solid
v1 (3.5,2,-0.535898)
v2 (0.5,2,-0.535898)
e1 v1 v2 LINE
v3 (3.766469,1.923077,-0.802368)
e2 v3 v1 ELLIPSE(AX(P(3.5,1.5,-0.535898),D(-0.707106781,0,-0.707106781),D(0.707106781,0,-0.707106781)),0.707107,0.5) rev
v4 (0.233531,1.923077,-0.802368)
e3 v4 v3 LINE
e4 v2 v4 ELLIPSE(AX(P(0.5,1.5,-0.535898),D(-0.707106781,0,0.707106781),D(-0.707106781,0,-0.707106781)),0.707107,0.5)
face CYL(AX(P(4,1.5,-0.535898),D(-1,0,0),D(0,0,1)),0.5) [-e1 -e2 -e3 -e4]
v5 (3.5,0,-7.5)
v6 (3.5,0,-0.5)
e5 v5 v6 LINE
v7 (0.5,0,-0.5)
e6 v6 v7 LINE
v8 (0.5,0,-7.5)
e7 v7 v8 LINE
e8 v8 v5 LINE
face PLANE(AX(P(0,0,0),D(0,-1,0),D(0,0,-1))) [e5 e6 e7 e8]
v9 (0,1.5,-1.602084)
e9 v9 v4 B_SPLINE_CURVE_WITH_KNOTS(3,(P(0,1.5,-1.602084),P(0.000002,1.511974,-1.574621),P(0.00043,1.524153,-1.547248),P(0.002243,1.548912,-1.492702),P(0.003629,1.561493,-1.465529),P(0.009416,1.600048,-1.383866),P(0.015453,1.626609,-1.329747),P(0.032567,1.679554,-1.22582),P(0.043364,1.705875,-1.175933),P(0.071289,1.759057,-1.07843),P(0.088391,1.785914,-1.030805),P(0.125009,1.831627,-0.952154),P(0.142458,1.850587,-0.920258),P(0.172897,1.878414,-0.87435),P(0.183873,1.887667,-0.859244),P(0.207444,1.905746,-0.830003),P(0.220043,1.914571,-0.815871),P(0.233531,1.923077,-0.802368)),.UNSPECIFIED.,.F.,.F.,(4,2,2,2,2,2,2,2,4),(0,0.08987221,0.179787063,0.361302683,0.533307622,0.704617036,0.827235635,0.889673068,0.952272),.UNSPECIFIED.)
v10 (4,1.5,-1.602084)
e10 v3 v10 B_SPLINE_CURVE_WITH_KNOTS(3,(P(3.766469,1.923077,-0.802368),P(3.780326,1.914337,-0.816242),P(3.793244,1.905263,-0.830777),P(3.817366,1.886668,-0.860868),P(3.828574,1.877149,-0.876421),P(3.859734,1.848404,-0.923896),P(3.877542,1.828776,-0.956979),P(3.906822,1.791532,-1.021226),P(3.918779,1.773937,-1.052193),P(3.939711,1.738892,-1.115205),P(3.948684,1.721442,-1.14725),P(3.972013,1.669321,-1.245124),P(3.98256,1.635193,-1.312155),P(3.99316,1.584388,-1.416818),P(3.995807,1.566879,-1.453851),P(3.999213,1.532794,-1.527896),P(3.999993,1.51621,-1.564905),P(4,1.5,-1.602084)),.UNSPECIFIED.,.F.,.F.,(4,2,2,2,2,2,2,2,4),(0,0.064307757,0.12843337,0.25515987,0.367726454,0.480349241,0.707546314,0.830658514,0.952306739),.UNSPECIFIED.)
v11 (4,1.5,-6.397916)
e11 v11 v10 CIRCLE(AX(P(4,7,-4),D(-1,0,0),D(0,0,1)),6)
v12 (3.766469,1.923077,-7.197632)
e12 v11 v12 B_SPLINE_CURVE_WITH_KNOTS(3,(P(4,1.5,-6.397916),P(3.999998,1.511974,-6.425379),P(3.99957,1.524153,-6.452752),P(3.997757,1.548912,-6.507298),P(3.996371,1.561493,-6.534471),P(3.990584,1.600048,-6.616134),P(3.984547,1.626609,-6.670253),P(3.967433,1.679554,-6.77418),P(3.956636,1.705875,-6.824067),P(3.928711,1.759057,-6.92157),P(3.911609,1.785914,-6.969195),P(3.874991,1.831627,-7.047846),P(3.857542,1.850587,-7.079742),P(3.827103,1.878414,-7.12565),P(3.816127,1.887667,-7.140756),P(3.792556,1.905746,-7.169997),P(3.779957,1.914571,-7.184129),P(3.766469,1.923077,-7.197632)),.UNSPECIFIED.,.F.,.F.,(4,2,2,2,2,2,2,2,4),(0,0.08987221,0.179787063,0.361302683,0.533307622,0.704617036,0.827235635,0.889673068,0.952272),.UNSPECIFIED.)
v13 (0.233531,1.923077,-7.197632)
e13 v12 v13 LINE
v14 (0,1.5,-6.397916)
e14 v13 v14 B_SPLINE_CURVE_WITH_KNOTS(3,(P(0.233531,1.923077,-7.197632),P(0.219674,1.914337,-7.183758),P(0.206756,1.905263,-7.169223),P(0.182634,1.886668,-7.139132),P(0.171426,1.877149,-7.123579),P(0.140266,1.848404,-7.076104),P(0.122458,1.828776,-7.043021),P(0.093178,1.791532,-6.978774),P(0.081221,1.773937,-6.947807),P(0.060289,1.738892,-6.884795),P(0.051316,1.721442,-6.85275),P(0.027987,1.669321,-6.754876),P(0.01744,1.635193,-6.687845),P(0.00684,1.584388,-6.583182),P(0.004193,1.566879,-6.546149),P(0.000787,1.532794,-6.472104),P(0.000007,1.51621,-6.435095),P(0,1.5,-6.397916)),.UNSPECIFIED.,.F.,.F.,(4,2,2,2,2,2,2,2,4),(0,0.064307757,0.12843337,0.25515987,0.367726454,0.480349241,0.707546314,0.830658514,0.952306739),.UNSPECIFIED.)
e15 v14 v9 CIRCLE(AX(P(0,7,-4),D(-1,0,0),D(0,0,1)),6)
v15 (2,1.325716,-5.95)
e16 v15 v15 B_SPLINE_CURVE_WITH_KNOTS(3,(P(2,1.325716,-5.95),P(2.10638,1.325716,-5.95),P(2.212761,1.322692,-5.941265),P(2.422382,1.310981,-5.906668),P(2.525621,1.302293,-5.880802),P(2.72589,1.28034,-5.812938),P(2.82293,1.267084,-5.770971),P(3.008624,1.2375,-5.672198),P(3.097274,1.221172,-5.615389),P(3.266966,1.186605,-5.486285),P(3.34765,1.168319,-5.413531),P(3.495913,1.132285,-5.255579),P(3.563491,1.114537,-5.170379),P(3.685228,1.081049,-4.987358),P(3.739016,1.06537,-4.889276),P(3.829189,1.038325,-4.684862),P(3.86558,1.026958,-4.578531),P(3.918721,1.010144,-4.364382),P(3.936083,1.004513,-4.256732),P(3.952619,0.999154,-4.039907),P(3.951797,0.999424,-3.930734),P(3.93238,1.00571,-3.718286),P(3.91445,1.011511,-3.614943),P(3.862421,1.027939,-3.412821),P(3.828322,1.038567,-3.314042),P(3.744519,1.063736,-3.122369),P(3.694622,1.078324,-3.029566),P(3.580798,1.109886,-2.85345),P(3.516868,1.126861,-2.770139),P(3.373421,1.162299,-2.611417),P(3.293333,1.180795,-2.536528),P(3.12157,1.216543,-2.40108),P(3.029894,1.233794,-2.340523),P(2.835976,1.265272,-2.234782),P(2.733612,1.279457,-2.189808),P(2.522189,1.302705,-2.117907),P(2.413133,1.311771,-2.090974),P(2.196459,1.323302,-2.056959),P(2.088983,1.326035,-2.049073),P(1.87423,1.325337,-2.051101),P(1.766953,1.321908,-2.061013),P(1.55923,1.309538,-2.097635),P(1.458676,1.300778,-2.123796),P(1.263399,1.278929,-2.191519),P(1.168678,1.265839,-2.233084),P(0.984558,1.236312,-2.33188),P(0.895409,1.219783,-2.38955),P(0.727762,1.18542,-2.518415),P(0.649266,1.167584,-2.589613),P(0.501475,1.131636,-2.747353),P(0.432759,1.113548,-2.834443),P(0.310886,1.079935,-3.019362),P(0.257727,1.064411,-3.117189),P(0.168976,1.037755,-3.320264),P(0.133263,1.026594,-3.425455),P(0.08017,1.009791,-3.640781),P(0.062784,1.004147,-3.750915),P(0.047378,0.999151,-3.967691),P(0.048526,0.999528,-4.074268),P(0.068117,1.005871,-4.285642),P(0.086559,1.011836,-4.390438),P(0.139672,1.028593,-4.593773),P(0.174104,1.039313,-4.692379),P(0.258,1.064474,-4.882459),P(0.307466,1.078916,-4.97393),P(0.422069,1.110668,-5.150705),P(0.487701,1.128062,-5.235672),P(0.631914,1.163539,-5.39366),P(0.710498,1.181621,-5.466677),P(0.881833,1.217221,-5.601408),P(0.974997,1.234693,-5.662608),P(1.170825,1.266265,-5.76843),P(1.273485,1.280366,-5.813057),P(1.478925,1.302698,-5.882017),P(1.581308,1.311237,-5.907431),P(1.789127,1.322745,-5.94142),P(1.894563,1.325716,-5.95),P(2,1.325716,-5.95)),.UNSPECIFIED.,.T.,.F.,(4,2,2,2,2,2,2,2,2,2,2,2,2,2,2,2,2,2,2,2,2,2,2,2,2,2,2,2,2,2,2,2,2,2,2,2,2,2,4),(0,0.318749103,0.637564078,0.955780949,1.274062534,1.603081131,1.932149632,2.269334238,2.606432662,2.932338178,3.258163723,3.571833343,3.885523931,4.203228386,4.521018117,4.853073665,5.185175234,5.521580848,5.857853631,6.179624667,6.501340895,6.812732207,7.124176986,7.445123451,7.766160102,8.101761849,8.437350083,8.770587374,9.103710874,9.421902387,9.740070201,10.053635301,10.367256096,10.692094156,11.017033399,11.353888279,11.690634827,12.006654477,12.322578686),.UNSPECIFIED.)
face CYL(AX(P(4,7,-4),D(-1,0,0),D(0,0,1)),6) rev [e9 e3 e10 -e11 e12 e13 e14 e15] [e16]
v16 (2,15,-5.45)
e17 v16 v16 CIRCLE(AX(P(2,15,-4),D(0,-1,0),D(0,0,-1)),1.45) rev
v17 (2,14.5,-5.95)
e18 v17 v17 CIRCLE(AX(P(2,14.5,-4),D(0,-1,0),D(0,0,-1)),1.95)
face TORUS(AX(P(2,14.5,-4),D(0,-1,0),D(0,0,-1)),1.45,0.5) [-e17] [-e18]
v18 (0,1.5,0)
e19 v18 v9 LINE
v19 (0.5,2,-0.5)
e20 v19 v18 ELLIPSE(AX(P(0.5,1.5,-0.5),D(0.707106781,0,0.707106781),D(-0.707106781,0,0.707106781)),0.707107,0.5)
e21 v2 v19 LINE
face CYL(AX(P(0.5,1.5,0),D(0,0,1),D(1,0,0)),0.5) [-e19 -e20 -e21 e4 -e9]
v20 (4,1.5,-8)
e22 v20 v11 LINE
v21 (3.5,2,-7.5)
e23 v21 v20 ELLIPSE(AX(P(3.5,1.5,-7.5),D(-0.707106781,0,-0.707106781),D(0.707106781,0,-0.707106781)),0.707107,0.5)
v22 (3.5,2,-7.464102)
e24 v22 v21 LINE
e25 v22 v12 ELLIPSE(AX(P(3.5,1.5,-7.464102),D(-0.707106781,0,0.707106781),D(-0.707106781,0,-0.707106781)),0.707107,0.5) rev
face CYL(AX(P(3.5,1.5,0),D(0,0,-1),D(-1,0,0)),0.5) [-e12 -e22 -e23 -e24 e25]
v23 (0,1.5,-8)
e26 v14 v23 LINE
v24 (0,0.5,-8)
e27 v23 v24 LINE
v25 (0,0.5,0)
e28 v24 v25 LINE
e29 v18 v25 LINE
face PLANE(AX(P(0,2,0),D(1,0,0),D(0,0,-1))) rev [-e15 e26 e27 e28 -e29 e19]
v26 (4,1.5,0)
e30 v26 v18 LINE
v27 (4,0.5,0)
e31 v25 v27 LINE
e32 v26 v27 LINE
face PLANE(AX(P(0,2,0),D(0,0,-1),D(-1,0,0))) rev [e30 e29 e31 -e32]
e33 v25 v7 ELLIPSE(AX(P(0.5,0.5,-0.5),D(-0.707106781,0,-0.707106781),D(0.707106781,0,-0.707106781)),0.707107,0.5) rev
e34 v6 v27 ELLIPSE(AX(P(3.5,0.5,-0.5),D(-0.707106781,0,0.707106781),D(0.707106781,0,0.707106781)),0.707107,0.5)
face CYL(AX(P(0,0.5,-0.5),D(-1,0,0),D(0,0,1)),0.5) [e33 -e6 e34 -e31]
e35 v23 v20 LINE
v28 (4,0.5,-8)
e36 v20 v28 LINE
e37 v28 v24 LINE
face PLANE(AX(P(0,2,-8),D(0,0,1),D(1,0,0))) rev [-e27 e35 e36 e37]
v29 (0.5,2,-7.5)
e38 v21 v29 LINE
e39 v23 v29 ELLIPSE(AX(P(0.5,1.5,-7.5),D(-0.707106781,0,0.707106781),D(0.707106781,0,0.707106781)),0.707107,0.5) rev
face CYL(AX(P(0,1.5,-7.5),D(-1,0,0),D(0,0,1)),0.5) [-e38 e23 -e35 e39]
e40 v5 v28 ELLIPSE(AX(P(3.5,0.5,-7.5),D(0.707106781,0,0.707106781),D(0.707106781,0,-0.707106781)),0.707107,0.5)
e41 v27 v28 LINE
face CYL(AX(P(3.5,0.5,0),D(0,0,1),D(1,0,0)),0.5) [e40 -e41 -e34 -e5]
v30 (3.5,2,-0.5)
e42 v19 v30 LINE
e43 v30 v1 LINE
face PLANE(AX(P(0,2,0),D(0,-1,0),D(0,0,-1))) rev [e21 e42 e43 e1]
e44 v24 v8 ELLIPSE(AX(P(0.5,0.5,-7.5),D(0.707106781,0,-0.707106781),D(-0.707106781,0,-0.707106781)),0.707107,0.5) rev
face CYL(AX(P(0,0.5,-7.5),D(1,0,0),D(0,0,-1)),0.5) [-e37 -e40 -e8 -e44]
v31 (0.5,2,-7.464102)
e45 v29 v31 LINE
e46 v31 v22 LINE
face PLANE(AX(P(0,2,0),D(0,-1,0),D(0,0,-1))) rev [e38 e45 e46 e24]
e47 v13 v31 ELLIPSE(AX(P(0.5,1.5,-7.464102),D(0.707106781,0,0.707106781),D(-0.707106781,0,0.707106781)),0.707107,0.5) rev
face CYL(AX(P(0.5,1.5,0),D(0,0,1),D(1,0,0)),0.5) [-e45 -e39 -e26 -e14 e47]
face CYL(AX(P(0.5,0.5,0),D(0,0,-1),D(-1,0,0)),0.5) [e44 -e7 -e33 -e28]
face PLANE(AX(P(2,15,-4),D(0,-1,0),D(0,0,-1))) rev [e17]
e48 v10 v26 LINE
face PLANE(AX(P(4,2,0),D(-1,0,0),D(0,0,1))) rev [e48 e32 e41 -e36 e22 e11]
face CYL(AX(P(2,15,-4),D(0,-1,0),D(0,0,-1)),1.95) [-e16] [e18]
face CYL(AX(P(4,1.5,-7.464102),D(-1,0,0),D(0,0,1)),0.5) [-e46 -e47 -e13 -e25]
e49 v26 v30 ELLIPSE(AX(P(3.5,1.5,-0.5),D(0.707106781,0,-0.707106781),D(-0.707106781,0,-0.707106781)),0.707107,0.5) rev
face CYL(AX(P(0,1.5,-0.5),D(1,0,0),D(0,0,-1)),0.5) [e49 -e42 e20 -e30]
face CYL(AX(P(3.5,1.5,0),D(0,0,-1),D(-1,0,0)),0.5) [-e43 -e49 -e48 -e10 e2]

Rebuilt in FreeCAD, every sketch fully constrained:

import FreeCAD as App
import Part
import Sketcher

V = App.Vector


def edges_at(feature, points):
    """Names of the edges that pass closest to the given points."""
    edges = feature.Shape.Edges
    near = lambda p: min(range(len(edges)), key=lambda i: edges[i].distToShape(Part.Vertex(*p))[0])
    return sorted({f"Edge{near(p) + 1}" for p in points})


def add_polygon(sketch, points):
    """Adds a closed chain of lines whose ends are joined by coincident constraints."""
    first, n = sketch.GeometryCount, len(points)
    for a, b in zip(points, points[1:] + points[:1]):
        sketch.addGeometry(Part.LineSegment(App.Vector(*a, 0), App.Vector(*b, 0)), False)
    for i in range(n):
        sketch.addConstraint(Sketcher.Constraint("Coincident", first + i, 2, first + (i + 1) % n, 1))

doc = App.newDocument("Part")
body = doc.addObject("PartDesign::Body", "Body")

sketch1 = doc.addObject("Sketcher::SketchObject", "Sketch")
body.addObject(sketch1)
sketch1.AttachmentSupport = (doc.XZ_Plane, [""])
sketch1.MapMode = "FlatFace"
add_polygon(sketch1, [(0, -8), (0, 0), (4, 0), (4, -8)])
sketch1.addGeometry(Part.Circle(V(2, -4, 0), V(0, 0, 1), 1.95), False)
sketch1.addConstraint(Sketcher.Constraint("Vertical", 0))
sketch1.addConstraint(Sketcher.Constraint("Horizontal", 1))
sketch1.addConstraint(Sketcher.Constraint("Vertical", 2))
sketch1.addConstraint(Sketcher.Constraint("Horizontal", 3))
sketch1.addConstraint(Sketcher.Constraint("Coincident", 0, 2, -1, 1))
sketch1.addConstraint(Sketcher.Constraint("Diameter", 4, 3.9))
sketch1.addConstraint(Sketcher.Constraint("DistanceX", 1, 1, 1, 2, 4.0))
sketch1.addConstraint(Sketcher.Constraint("DistanceY", 0, 1, 0, 2, 8.0))
sketch1.addConstraint(Sketcher.Constraint("DistanceX", -1, 1, 4, 3, 2.0))
sketch1.addConstraint(Sketcher.Constraint("DistanceY", 4, 3, -1, 1, 4.0))
pad1 = doc.addObject("PartDesign::Pad", "Pad")
body.addObject(pad1)
pad1.Profile = sketch1
pad1.Length = 2
pad1.Reversed = True

sketch2 = doc.addObject("Sketcher::SketchObject", "Sketch001")
body.addObject(sketch2)
sketch2.AttachmentSupport = (doc.YZ_Plane, [""])
sketch2.MapMode = "FlatFace"
sketch2.addGeometry(Part.Circle(V(7, -4, 0), V(0, 0, 1), 6), False)
sketch2.addConstraint(Sketcher.Constraint("Diameter", 0, 12.0))
sketch2.addConstraint(Sketcher.Constraint("DistanceX", -1, 1, 0, 3, 7.0))
sketch2.addConstraint(Sketcher.Constraint("DistanceY", 0, 3, -1, 1, 4.0))
pocket1 = doc.addObject("PartDesign::Pocket", "Pocket")
body.addObject(pocket1)
pocket1.Profile = sketch2
pocket1.Type = "ThroughAll"
pocket1.Reversed = True

sketch3 = doc.addObject("Sketcher::SketchObject", "Sketch002")
body.addObject(sketch3)
sketch3.AttachmentSupport = (doc.XZ_Plane, [""])
sketch3.MapMode = "FlatFace"
sketch3.addGeometry(Part.Circle(V(2, -4, 0), V(0, 0, 1), 1.95), False)
sketch3.addConstraint(Sketcher.Constraint("Diameter", 0, 3.9))
sketch3.addConstraint(Sketcher.Constraint("DistanceX", -1, 1, 0, 3, 2.0))
sketch3.addConstraint(Sketcher.Constraint("DistanceY", 0, 3, -1, 1, 4.0))
pad2 = doc.addObject("PartDesign::Pad", "Pad001")
body.addObject(pad2)
pad2.Profile = sketch3
pad2.Length = 15
pad2.Reversed = True
doc.recompute()

fillet = doc.addObject("PartDesign::Fillet", "Fillet")
body.addObject(fillet)
fillet.Base = (pad2, edges_at(pad2, [
    (4, 2, -0.342),
    (2, 2, -8),
    (4, 2, -7.658),
    (0, 2, -0.342),
    (2, 2, -0.683),
    (2, 2, -7.317),
    (2, 15, -2.05),
    (0, 2, -7.658),
    (2, 0, -8),
    (4, 0, -4),
    (2, 0, 0),
    (0, 0, -4),
    (2, 2, 0),
]))
fillet.Radius = 0.5

doc.recompute()
